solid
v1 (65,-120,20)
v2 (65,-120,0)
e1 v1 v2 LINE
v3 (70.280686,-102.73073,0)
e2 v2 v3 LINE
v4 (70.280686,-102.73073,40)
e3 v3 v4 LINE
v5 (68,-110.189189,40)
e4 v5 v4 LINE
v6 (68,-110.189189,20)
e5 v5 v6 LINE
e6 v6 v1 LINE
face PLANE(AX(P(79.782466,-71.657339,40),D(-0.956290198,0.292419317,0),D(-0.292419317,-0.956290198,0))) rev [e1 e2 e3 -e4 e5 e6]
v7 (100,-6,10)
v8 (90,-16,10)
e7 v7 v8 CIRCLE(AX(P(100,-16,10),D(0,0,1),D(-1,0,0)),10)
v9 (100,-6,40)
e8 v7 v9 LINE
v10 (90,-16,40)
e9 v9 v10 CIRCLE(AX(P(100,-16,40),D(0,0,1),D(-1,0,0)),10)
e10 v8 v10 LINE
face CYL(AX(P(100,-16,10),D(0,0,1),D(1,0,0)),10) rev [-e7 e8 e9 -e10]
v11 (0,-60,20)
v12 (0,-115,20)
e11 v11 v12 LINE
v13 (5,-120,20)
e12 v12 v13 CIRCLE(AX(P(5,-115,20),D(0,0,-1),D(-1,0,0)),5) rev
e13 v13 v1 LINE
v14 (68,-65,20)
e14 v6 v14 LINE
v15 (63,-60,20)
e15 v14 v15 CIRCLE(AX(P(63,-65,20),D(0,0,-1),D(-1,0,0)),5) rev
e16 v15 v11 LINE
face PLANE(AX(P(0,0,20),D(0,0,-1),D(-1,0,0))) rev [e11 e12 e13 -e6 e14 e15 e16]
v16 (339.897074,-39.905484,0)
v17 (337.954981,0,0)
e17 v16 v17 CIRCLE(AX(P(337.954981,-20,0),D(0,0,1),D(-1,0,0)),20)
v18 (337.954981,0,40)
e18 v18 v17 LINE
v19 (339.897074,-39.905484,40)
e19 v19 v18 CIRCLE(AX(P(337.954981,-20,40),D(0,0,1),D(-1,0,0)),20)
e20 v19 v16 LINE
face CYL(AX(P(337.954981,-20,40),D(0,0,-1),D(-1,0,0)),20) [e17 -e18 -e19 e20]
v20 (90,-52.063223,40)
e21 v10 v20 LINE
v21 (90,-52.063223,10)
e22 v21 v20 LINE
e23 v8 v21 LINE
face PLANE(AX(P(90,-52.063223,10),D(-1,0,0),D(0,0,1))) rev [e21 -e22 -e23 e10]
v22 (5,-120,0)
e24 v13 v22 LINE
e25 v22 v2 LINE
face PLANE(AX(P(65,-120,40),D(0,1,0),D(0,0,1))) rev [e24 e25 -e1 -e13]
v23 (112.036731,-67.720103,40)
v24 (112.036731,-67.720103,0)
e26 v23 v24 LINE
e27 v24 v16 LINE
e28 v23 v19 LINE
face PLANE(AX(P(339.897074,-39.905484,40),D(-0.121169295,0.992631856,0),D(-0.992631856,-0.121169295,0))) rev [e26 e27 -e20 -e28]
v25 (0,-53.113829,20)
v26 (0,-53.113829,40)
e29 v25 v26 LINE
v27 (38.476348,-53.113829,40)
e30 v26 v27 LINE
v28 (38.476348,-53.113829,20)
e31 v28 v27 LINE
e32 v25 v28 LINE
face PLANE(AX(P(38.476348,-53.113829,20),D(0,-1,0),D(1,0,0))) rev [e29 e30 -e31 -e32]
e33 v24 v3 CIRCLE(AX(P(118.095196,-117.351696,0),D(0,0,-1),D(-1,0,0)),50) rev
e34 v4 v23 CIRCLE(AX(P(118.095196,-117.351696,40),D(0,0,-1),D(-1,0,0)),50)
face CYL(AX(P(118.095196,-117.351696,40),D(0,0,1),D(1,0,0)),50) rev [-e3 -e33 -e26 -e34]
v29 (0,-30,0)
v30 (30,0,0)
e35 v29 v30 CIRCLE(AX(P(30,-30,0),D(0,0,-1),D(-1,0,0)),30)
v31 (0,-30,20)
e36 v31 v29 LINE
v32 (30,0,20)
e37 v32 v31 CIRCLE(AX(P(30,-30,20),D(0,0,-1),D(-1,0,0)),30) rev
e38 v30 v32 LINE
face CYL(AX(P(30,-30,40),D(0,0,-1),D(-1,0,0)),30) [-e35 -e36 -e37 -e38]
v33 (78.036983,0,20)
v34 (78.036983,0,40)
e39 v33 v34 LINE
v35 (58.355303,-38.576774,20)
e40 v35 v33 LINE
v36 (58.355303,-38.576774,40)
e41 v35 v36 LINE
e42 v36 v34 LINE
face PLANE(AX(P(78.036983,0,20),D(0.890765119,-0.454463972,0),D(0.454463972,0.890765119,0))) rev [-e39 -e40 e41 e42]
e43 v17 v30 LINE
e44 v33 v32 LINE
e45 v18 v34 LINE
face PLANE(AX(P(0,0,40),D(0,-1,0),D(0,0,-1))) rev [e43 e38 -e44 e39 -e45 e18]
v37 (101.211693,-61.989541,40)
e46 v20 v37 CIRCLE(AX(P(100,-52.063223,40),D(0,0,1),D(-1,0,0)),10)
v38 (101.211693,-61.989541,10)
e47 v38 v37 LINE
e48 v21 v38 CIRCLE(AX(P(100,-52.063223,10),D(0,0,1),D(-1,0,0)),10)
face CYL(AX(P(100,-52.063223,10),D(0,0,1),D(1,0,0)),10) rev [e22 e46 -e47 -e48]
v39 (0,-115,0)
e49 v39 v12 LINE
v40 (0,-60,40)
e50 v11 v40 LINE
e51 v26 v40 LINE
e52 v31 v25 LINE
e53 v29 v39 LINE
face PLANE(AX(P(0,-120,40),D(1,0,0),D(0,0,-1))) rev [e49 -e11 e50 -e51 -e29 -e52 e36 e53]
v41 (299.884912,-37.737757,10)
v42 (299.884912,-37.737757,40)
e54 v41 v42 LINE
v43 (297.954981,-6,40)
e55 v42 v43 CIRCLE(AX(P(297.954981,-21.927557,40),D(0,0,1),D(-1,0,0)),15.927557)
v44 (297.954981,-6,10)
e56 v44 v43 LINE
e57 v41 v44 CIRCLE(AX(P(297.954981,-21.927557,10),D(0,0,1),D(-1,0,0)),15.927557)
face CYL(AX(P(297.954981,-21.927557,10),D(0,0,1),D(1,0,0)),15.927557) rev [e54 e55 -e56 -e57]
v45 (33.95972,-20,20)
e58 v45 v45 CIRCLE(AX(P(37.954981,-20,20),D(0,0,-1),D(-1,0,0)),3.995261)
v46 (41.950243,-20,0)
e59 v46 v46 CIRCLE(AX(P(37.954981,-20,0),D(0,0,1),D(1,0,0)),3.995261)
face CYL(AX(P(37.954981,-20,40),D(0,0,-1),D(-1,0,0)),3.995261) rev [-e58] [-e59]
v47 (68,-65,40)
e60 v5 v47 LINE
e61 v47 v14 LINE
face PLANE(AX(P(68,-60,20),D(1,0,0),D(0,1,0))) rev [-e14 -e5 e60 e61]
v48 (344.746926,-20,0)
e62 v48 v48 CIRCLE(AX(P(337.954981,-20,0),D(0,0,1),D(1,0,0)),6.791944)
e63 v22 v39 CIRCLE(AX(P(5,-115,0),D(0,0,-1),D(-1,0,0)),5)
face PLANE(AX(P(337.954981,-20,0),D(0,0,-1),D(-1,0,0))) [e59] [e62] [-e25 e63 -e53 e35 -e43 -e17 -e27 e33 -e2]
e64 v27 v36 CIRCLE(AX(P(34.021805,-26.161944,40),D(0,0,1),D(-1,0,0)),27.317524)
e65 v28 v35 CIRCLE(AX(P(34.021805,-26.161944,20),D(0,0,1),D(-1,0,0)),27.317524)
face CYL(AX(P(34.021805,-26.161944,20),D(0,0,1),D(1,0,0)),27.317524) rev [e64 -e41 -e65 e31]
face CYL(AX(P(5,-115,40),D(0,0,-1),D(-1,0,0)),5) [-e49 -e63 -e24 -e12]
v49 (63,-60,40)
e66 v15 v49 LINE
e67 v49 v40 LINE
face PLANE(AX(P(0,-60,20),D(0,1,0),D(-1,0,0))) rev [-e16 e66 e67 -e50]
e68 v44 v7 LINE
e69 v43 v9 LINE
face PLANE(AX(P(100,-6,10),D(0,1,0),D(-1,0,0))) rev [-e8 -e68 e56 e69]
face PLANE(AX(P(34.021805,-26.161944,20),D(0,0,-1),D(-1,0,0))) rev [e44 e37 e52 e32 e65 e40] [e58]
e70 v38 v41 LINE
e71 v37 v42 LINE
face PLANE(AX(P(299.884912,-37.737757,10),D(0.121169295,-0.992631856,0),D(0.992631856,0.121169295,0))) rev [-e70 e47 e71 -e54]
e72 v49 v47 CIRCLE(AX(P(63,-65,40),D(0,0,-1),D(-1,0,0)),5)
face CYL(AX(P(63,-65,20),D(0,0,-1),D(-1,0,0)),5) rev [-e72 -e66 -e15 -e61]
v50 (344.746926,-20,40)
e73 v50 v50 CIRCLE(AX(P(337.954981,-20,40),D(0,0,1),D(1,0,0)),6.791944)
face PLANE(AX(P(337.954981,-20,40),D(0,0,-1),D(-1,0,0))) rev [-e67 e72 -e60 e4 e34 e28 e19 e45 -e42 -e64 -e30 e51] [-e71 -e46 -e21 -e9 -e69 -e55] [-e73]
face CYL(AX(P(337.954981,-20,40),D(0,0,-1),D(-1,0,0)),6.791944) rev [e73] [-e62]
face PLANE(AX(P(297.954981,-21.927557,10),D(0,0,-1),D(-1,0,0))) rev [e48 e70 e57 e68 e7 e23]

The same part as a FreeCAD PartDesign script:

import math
import FreeCAD as App
import Part
import Sketcher

V = App.Vector
Q = App.Units.Quantity


def edges_at(feature, points):
    """Names of the edges that pass closest to the given points."""
    edges = feature.Shape.Edges
    near = lambda p: min(range(len(edges)), key=lambda i: edges[i].distToShape(Part.Vertex(*p))[0])
    return sorted({f"Edge{near(p) + 1}" for p in points})

doc = App.newDocument("Part")
body = doc.addObject("PartDesign::Body", "Body")

sketch1 = body.newObject("Sketcher::SketchObject", "Sketch")
sketch1.AttachmentSupport = (doc.getObject("XY_Plane"), [""])
sketch1.MapMode = "FlatFace"
sketch1.addGeometry(Part.LineSegment(V(338, 0, 0), V(0, 0, 0)), False)
sketch1.addGeometry(Part.LineSegment(V(0, 0, 0), V(0, -120, 0)), False)
sketch1.addGeometry(Part.LineSegment(V(0, -120, 0), V(65, -120, 0)), False)
sketch1.addGeometry(Part.LineSegment(V(65, -120, 0), V(79.8, -71.7, 0)), False)
sketch1.addGeometry(Part.LineSegment(V(79.8, -71.7, 0), V(339.9, -39.9, 0)), False)
sketch1.addGeometry(Part.ArcOfCircle(Part.Circle(V(338, -20, 0), V(0, 0, 1), 20), math.radians(-84), math.radians(90)), False)
sketch1.addGeometry(Part.Circle(V(338, -20, 0), V(0, 0, 1), 6.8), False)
sketch1.addGeometry(Part.Circle(V(38, -20, 0), V(0, 0, 1), 4), False)
sketch1.addConstraint(Sketcher.Constraint("Coincident", 0, 2, 1, 1))
sketch1.addConstraint(Sketcher.Constraint("Coincident", 1, 2, 2, 1))
sketch1.addConstraint(Sketcher.Constraint("Coincident", 2, 2, 3, 1))
sketch1.addConstraint(Sketcher.Constraint("Coincident", 3, 2, 4, 1))
sketch1.addConstraint(Sketcher.Constraint("Coincident", 4, 2, 5, 1))
sketch1.addConstraint(Sketcher.Constraint("Tangent", 5, 2, 0, 1))
sketch1.addConstraint(Sketcher.Constraint("Horizontal", 0))
sketch1.addConstraint(Sketcher.Constraint("Vertical", 1))
sketch1.addConstraint(Sketcher.Constraint("Horizontal", 2))
sketch1.addConstraint(Sketcher.Constraint("Coincident", 0, 2, -1, 1))
sketch1.addConstraint(Sketcher.Constraint("Coincident", 6, 3, 5, 3))
sketch1.addConstraint(Sketcher.Constraint("Horizontal", 6, 3, 7, 3))
sketch1.addConstraint(Sketcher.Constraint("Radius", 5, Q("20 mm")))
sketch1.addConstraint(Sketcher.Constraint("DistanceX", 2, 1, 2, 2, Q("65 mm")))
sketch1.addConstraint(Sketcher.Constraint("DistanceY", 1, 2, 1, 1, Q("120 mm")))
sketch1.addConstraint(Sketcher.Constraint("DistanceX", 7, 3, 5, 3, Q("300 mm")))
sketch1.addConstraint(Sketcher.Constraint("Diameter", 6, Q("13.583888 mm")))
sketch1.addConstraint(Sketcher.Constraint("Diameter", 7, Q("7.990522 mm")))
sketch1.addConstraint(Sketcher.Constraint("DistanceX", 0, 2, 0, 1, Q("337.954981 mm")))
sketch1.addConstraint(Sketcher.Constraint("Distance", 3, Q("50.552291 mm")))
sketch1.addConstraint(Sketcher.Constraint("DistanceY", 3, 2, -1, 1, Q("71.657339 mm")))
sketch1.addConstraint(Sketcher.Constraint("Distance", 4, Q("262.045396 mm")))
pad1 = body.newObject("PartDesign::Pad", "Pad")
pad1.Profile = sketch1
pad1.Length = 40

sketch2 = body.newObject("Sketcher::SketchObject", "Sketch001")
sketch2.AttachmentSupport = (doc.getObject("XY_Plane"), [""])
sketch2.MapMode = "FlatFace"
sketch2.AttachmentOffset = App.Placement(V(0, 0, 40), App.Rotation())
sketch2.addGeometry(Part.LineSegment(V(297.954981, -6, 0), V(100, -6, 0)), False)
sketch2.addGeometry(Part.ArcOfCircle(Part.Circle(V(100, -16, 0), V(0, 0, 1), 10), math.radians(90), math.radians(180)), False)
sketch2.addGeometry(Part.LineSegment(V(90, -16, 0), V(90, -52.063223, 0)), False)
sketch2.addGeometry(Part.ArcOfCircle(Part.Circle(V(100, -52.063223, 0), V(0, 0, 1), 10), math.radians(180), math.radians(276.959591)), False)
sketch2.addGeometry(Part.LineSegment(V(101.211693, -61.989541, 0), V(299.884912, -37.737757, 0)), False)
sketch2.addGeometry(Part.ArcOfCircle(Part.Circle(V(297.954981, -21.927557, 0), V(0, 0, 1), 15.927557), math.radians(-83.040409), math.radians(90)), False)
sketch2.addConstraint(Sketcher.Constraint("Coincident", 0, 2, 1, 1))
sketch2.addConstraint(Sketcher.Constraint("Coincident", 1, 2, 2, 1))
sketch2.addConstraint(Sketcher.Constraint("Coincident", 2, 2, 3, 1))
sketch2.addConstraint(Sketcher.Constraint("Coincident", 3, 2, 4, 1))
sketch2.addConstraint(Sketcher.Constraint("Coincident", 4, 2, 5, 1))
sketch2.addConstraint(Sketcher.Constraint("Coincident", 5, 2, 0, 1))
sketch2.addConstraint(Sketcher.Constraint("Horizontal", 0))
sketch2.addConstraint(Sketcher.Constraint("Vertical", 2))
sketch2.addConstraint(Sketcher.Constraint("Radius", 1, Q("10 mm")))
sketch2.addConstraint(Sketcher.Constraint("Radius", 3, Q("10 mm")))
sketch2.addConstraint(Sketcher.Constraint("DistanceX", -1, 1, 1, 3, Q("100 mm")))
sketch2.addConstraint(Sketcher.Constraint("DistanceY", 1, 3, -1, 1, Q("16 mm")))
sketch2.addConstraint(Sketcher.Constraint("DistanceX", -1, 1, 0, 2, Q("100 mm")))
sketch2.addConstraint(Sketcher.Constraint("DistanceY", 1, 2, -1, 1, Q("16 mm")))
sketch2.addConstraint(Sketcher.Constraint("Radius", 5, Q("15.927557 mm")))
sketch2.addConstraint(Sketcher.Constraint("DistanceX", 0, 2, 0, 1, Q("197.954981 mm")))
sketch2.addConstraint(Sketcher.Constraint("DistanceY", 4, 2, 5, 3, Q("15.8102 mm")))
sketch2.addConstraint(Sketcher.Constraint("Distance", 4, Q("200.147938 mm")))
sketch2.addConstraint(Sketcher.Constraint("DistanceY", 2, 2, 2, 1, Q("36.063223 mm")))
sketch2.addConstraint(Sketcher.Constraint("DistanceX", -1, 1, 5, 3, Q("297.954981 mm")))
sketch2.addConstraint(Sketcher.Constraint("DistanceY", 3, 2, -1, 1, Q("61.989541 mm")))
pocket1 = body.newObject("PartDesign::Pocket", "Pocket")
pocket1.Profile = sketch2
pocket1.Length = 30
doc.recompute()

fillet = body.newObject("PartDesign::Fillet", "Fillet")
fillet.Base = (pocket1, edges_at(pocket1, [(79.782, -71.657, 20)]))
fillet.Radius = 50

sketch3 = body.newObject("Sketcher::SketchObject", "Sketch002")
sketch3.AttachmentSupport = (doc.getObject("XY_Plane"), [""])
sketch3.MapMode = "FlatFace"
sketch3.AttachmentOffset = App.Placement(V(0, 0, 40), App.Rotation())
sketch3.addGeometry(Part.LineSegment(V(0, -60, 0), V(0, -120, 0)), False)
sketch3.addGeometry(Part.LineSegment(V(0, -120, 0), V(68, -120, 0)), False)
sketch3.addGeometry(Part.LineSegment(V(68, -120, 0), V(68, -60, 0)), False)
sketch3.addGeometry(Part.LineSegment(V(68, -60, 0), V(0, -60, 0)), False)
sketch3.addConstraint(Sketcher.Constraint("Coincident", 0, 2, 1, 1))
sketch3.addConstraint(Sketcher.Constraint("Coincident", 1, 2, 2, 1))
sketch3.addConstraint(Sketcher.Constraint("Coincident", 2, 2, 3, 1))
sketch3.addConstraint(Sketcher.Constraint("Coincident", 3, 2, 0, 1))
sketch3.addConstraint(Sketcher.Constraint("Vertical", 0))
sketch3.addConstraint(Sketcher.Constraint("Horizontal", 1))
sketch3.addConstraint(Sketcher.Constraint("Vertical", 2))
sketch3.addConstraint(Sketcher.Constraint("Horizontal", 3))
sketch3.addConstraint(Sketcher.Constraint("PointOnObject", 0, 2, -2))
sketch3.addConstraint(Sketcher.Constraint("DistanceX", 1, 1, 1, 2, Q("68 mm")))
sketch3.addConstraint(Sketcher.Constraint("DistanceY", 0, 2, 0, 1, Q("60 mm")))
sketch3.addConstraint(Sketcher.Constraint("DistanceY", 0, 2, -1, 1, Q("120 mm")))
pocket2 = body.newObject("PartDesign::Pocket", "Pocket001")
pocket2.Profile = sketch3
pocket2.Length = 20
doc.recompute()

fillet2 = body.newObject("PartDesign::Fillet", "Fillet001")
fillet2.Base = (pocket2, edges_at(pocket2, [(0, 0, 20)]))
fillet2.Radius = 30
doc.recompute()

fillet3 = body.newObject("PartDesign::Fillet", "Fillet002")
fillet3.Base = (fillet2, edges_at(fillet2, [(68, -60, 30)]))
fillet3.Radius = 5
doc.recompute()

fillet4 = body.newObject("PartDesign::Fillet", "Fillet003")
fillet4.Base = (fillet3, edges_at(fillet3, [(0, -120, 10)]))
fillet4.Radius = 5

sketch4 = body.newObject("Sketcher::SketchObject", "Sketch003")
sketch4.AttachmentSupport = (doc.getObject("XY_Plane"), [""])
sketch4.MapMode = "FlatFace"
sketch4.AttachmentOffset = App.Placement(V(0, 0, 40), App.Rotation())
sketch4.addGeometry(Part.LineSegment(V(58, -39, 0), V(78, 0, 0)), False)
sketch4.addGeometry(Part.LineSegment(V(78, 0, 0), V(0, 0, 0)), False)
sketch4.addGeometry(Part.LineSegment(V(0, 0, 0), V(0, -53, 0)), False)
sketch4.addGeometry(Part.LineSegment(V(0, -53, 0), V(38, -53, 0)), False)
sketch4.addGeometry(Part.ArcOfCircle(Part.Circle(V(34, -26, 0), V(0, 0, 1), 27), math.radians(-81), math.radians(-27)), False)
sketch4.addConstraint(Sketcher.Constraint("Coincident", 0, 2, 1, 1))
sketch4.addConstraint(Sketcher.Constraint("Coincident", 1, 2, 2, 1))
sketch4.addConstraint(Sketcher.Constraint("Coincident", 2, 2, 3, 1))
sketch4.addConstraint(Sketcher.Constraint("Coincident", 3, 2, 4, 1))
sketch4.addConstraint(Sketcher.Constraint("Tangent", 4, 2, 0, 1))
sketch4.addConstraint(Sketcher.Constraint("Horizontal", 1))
sketch4.addConstraint(Sketcher.Constraint("Vertical", 2))
sketch4.addConstraint(Sketcher.Constraint("Horizontal", 3))
sketch4.addConstraint(Sketcher.Constraint("Coincident", 1, 2, -1, 1))
sketch4.addConstraint(Sketcher.Constraint("Radius", 4, Q("27.317524 mm")))
sketch4.addConstraint(Sketcher.Constraint("DistanceX", 3, 1, 3, 2, Q("38.476348 mm")))
sketch4.addConstraint(Sketcher.Constraint("DistanceY", 2, 2, 2, 1, Q("53.113829 mm")))
sketch4.addConstraint(Sketcher.Constraint("Distance", 0, Q("43.307459 mm")))
sketch4.addConstraint(Sketcher.Constraint("DistanceX", 1, 2, 1, 1, Q("78.036983 mm")))
pocket3 = body.newObject("PartDesign::Pocket", "Pocket002")
pocket3.Profile = sketch4
pocket3.Length = 20

doc.recompute()
